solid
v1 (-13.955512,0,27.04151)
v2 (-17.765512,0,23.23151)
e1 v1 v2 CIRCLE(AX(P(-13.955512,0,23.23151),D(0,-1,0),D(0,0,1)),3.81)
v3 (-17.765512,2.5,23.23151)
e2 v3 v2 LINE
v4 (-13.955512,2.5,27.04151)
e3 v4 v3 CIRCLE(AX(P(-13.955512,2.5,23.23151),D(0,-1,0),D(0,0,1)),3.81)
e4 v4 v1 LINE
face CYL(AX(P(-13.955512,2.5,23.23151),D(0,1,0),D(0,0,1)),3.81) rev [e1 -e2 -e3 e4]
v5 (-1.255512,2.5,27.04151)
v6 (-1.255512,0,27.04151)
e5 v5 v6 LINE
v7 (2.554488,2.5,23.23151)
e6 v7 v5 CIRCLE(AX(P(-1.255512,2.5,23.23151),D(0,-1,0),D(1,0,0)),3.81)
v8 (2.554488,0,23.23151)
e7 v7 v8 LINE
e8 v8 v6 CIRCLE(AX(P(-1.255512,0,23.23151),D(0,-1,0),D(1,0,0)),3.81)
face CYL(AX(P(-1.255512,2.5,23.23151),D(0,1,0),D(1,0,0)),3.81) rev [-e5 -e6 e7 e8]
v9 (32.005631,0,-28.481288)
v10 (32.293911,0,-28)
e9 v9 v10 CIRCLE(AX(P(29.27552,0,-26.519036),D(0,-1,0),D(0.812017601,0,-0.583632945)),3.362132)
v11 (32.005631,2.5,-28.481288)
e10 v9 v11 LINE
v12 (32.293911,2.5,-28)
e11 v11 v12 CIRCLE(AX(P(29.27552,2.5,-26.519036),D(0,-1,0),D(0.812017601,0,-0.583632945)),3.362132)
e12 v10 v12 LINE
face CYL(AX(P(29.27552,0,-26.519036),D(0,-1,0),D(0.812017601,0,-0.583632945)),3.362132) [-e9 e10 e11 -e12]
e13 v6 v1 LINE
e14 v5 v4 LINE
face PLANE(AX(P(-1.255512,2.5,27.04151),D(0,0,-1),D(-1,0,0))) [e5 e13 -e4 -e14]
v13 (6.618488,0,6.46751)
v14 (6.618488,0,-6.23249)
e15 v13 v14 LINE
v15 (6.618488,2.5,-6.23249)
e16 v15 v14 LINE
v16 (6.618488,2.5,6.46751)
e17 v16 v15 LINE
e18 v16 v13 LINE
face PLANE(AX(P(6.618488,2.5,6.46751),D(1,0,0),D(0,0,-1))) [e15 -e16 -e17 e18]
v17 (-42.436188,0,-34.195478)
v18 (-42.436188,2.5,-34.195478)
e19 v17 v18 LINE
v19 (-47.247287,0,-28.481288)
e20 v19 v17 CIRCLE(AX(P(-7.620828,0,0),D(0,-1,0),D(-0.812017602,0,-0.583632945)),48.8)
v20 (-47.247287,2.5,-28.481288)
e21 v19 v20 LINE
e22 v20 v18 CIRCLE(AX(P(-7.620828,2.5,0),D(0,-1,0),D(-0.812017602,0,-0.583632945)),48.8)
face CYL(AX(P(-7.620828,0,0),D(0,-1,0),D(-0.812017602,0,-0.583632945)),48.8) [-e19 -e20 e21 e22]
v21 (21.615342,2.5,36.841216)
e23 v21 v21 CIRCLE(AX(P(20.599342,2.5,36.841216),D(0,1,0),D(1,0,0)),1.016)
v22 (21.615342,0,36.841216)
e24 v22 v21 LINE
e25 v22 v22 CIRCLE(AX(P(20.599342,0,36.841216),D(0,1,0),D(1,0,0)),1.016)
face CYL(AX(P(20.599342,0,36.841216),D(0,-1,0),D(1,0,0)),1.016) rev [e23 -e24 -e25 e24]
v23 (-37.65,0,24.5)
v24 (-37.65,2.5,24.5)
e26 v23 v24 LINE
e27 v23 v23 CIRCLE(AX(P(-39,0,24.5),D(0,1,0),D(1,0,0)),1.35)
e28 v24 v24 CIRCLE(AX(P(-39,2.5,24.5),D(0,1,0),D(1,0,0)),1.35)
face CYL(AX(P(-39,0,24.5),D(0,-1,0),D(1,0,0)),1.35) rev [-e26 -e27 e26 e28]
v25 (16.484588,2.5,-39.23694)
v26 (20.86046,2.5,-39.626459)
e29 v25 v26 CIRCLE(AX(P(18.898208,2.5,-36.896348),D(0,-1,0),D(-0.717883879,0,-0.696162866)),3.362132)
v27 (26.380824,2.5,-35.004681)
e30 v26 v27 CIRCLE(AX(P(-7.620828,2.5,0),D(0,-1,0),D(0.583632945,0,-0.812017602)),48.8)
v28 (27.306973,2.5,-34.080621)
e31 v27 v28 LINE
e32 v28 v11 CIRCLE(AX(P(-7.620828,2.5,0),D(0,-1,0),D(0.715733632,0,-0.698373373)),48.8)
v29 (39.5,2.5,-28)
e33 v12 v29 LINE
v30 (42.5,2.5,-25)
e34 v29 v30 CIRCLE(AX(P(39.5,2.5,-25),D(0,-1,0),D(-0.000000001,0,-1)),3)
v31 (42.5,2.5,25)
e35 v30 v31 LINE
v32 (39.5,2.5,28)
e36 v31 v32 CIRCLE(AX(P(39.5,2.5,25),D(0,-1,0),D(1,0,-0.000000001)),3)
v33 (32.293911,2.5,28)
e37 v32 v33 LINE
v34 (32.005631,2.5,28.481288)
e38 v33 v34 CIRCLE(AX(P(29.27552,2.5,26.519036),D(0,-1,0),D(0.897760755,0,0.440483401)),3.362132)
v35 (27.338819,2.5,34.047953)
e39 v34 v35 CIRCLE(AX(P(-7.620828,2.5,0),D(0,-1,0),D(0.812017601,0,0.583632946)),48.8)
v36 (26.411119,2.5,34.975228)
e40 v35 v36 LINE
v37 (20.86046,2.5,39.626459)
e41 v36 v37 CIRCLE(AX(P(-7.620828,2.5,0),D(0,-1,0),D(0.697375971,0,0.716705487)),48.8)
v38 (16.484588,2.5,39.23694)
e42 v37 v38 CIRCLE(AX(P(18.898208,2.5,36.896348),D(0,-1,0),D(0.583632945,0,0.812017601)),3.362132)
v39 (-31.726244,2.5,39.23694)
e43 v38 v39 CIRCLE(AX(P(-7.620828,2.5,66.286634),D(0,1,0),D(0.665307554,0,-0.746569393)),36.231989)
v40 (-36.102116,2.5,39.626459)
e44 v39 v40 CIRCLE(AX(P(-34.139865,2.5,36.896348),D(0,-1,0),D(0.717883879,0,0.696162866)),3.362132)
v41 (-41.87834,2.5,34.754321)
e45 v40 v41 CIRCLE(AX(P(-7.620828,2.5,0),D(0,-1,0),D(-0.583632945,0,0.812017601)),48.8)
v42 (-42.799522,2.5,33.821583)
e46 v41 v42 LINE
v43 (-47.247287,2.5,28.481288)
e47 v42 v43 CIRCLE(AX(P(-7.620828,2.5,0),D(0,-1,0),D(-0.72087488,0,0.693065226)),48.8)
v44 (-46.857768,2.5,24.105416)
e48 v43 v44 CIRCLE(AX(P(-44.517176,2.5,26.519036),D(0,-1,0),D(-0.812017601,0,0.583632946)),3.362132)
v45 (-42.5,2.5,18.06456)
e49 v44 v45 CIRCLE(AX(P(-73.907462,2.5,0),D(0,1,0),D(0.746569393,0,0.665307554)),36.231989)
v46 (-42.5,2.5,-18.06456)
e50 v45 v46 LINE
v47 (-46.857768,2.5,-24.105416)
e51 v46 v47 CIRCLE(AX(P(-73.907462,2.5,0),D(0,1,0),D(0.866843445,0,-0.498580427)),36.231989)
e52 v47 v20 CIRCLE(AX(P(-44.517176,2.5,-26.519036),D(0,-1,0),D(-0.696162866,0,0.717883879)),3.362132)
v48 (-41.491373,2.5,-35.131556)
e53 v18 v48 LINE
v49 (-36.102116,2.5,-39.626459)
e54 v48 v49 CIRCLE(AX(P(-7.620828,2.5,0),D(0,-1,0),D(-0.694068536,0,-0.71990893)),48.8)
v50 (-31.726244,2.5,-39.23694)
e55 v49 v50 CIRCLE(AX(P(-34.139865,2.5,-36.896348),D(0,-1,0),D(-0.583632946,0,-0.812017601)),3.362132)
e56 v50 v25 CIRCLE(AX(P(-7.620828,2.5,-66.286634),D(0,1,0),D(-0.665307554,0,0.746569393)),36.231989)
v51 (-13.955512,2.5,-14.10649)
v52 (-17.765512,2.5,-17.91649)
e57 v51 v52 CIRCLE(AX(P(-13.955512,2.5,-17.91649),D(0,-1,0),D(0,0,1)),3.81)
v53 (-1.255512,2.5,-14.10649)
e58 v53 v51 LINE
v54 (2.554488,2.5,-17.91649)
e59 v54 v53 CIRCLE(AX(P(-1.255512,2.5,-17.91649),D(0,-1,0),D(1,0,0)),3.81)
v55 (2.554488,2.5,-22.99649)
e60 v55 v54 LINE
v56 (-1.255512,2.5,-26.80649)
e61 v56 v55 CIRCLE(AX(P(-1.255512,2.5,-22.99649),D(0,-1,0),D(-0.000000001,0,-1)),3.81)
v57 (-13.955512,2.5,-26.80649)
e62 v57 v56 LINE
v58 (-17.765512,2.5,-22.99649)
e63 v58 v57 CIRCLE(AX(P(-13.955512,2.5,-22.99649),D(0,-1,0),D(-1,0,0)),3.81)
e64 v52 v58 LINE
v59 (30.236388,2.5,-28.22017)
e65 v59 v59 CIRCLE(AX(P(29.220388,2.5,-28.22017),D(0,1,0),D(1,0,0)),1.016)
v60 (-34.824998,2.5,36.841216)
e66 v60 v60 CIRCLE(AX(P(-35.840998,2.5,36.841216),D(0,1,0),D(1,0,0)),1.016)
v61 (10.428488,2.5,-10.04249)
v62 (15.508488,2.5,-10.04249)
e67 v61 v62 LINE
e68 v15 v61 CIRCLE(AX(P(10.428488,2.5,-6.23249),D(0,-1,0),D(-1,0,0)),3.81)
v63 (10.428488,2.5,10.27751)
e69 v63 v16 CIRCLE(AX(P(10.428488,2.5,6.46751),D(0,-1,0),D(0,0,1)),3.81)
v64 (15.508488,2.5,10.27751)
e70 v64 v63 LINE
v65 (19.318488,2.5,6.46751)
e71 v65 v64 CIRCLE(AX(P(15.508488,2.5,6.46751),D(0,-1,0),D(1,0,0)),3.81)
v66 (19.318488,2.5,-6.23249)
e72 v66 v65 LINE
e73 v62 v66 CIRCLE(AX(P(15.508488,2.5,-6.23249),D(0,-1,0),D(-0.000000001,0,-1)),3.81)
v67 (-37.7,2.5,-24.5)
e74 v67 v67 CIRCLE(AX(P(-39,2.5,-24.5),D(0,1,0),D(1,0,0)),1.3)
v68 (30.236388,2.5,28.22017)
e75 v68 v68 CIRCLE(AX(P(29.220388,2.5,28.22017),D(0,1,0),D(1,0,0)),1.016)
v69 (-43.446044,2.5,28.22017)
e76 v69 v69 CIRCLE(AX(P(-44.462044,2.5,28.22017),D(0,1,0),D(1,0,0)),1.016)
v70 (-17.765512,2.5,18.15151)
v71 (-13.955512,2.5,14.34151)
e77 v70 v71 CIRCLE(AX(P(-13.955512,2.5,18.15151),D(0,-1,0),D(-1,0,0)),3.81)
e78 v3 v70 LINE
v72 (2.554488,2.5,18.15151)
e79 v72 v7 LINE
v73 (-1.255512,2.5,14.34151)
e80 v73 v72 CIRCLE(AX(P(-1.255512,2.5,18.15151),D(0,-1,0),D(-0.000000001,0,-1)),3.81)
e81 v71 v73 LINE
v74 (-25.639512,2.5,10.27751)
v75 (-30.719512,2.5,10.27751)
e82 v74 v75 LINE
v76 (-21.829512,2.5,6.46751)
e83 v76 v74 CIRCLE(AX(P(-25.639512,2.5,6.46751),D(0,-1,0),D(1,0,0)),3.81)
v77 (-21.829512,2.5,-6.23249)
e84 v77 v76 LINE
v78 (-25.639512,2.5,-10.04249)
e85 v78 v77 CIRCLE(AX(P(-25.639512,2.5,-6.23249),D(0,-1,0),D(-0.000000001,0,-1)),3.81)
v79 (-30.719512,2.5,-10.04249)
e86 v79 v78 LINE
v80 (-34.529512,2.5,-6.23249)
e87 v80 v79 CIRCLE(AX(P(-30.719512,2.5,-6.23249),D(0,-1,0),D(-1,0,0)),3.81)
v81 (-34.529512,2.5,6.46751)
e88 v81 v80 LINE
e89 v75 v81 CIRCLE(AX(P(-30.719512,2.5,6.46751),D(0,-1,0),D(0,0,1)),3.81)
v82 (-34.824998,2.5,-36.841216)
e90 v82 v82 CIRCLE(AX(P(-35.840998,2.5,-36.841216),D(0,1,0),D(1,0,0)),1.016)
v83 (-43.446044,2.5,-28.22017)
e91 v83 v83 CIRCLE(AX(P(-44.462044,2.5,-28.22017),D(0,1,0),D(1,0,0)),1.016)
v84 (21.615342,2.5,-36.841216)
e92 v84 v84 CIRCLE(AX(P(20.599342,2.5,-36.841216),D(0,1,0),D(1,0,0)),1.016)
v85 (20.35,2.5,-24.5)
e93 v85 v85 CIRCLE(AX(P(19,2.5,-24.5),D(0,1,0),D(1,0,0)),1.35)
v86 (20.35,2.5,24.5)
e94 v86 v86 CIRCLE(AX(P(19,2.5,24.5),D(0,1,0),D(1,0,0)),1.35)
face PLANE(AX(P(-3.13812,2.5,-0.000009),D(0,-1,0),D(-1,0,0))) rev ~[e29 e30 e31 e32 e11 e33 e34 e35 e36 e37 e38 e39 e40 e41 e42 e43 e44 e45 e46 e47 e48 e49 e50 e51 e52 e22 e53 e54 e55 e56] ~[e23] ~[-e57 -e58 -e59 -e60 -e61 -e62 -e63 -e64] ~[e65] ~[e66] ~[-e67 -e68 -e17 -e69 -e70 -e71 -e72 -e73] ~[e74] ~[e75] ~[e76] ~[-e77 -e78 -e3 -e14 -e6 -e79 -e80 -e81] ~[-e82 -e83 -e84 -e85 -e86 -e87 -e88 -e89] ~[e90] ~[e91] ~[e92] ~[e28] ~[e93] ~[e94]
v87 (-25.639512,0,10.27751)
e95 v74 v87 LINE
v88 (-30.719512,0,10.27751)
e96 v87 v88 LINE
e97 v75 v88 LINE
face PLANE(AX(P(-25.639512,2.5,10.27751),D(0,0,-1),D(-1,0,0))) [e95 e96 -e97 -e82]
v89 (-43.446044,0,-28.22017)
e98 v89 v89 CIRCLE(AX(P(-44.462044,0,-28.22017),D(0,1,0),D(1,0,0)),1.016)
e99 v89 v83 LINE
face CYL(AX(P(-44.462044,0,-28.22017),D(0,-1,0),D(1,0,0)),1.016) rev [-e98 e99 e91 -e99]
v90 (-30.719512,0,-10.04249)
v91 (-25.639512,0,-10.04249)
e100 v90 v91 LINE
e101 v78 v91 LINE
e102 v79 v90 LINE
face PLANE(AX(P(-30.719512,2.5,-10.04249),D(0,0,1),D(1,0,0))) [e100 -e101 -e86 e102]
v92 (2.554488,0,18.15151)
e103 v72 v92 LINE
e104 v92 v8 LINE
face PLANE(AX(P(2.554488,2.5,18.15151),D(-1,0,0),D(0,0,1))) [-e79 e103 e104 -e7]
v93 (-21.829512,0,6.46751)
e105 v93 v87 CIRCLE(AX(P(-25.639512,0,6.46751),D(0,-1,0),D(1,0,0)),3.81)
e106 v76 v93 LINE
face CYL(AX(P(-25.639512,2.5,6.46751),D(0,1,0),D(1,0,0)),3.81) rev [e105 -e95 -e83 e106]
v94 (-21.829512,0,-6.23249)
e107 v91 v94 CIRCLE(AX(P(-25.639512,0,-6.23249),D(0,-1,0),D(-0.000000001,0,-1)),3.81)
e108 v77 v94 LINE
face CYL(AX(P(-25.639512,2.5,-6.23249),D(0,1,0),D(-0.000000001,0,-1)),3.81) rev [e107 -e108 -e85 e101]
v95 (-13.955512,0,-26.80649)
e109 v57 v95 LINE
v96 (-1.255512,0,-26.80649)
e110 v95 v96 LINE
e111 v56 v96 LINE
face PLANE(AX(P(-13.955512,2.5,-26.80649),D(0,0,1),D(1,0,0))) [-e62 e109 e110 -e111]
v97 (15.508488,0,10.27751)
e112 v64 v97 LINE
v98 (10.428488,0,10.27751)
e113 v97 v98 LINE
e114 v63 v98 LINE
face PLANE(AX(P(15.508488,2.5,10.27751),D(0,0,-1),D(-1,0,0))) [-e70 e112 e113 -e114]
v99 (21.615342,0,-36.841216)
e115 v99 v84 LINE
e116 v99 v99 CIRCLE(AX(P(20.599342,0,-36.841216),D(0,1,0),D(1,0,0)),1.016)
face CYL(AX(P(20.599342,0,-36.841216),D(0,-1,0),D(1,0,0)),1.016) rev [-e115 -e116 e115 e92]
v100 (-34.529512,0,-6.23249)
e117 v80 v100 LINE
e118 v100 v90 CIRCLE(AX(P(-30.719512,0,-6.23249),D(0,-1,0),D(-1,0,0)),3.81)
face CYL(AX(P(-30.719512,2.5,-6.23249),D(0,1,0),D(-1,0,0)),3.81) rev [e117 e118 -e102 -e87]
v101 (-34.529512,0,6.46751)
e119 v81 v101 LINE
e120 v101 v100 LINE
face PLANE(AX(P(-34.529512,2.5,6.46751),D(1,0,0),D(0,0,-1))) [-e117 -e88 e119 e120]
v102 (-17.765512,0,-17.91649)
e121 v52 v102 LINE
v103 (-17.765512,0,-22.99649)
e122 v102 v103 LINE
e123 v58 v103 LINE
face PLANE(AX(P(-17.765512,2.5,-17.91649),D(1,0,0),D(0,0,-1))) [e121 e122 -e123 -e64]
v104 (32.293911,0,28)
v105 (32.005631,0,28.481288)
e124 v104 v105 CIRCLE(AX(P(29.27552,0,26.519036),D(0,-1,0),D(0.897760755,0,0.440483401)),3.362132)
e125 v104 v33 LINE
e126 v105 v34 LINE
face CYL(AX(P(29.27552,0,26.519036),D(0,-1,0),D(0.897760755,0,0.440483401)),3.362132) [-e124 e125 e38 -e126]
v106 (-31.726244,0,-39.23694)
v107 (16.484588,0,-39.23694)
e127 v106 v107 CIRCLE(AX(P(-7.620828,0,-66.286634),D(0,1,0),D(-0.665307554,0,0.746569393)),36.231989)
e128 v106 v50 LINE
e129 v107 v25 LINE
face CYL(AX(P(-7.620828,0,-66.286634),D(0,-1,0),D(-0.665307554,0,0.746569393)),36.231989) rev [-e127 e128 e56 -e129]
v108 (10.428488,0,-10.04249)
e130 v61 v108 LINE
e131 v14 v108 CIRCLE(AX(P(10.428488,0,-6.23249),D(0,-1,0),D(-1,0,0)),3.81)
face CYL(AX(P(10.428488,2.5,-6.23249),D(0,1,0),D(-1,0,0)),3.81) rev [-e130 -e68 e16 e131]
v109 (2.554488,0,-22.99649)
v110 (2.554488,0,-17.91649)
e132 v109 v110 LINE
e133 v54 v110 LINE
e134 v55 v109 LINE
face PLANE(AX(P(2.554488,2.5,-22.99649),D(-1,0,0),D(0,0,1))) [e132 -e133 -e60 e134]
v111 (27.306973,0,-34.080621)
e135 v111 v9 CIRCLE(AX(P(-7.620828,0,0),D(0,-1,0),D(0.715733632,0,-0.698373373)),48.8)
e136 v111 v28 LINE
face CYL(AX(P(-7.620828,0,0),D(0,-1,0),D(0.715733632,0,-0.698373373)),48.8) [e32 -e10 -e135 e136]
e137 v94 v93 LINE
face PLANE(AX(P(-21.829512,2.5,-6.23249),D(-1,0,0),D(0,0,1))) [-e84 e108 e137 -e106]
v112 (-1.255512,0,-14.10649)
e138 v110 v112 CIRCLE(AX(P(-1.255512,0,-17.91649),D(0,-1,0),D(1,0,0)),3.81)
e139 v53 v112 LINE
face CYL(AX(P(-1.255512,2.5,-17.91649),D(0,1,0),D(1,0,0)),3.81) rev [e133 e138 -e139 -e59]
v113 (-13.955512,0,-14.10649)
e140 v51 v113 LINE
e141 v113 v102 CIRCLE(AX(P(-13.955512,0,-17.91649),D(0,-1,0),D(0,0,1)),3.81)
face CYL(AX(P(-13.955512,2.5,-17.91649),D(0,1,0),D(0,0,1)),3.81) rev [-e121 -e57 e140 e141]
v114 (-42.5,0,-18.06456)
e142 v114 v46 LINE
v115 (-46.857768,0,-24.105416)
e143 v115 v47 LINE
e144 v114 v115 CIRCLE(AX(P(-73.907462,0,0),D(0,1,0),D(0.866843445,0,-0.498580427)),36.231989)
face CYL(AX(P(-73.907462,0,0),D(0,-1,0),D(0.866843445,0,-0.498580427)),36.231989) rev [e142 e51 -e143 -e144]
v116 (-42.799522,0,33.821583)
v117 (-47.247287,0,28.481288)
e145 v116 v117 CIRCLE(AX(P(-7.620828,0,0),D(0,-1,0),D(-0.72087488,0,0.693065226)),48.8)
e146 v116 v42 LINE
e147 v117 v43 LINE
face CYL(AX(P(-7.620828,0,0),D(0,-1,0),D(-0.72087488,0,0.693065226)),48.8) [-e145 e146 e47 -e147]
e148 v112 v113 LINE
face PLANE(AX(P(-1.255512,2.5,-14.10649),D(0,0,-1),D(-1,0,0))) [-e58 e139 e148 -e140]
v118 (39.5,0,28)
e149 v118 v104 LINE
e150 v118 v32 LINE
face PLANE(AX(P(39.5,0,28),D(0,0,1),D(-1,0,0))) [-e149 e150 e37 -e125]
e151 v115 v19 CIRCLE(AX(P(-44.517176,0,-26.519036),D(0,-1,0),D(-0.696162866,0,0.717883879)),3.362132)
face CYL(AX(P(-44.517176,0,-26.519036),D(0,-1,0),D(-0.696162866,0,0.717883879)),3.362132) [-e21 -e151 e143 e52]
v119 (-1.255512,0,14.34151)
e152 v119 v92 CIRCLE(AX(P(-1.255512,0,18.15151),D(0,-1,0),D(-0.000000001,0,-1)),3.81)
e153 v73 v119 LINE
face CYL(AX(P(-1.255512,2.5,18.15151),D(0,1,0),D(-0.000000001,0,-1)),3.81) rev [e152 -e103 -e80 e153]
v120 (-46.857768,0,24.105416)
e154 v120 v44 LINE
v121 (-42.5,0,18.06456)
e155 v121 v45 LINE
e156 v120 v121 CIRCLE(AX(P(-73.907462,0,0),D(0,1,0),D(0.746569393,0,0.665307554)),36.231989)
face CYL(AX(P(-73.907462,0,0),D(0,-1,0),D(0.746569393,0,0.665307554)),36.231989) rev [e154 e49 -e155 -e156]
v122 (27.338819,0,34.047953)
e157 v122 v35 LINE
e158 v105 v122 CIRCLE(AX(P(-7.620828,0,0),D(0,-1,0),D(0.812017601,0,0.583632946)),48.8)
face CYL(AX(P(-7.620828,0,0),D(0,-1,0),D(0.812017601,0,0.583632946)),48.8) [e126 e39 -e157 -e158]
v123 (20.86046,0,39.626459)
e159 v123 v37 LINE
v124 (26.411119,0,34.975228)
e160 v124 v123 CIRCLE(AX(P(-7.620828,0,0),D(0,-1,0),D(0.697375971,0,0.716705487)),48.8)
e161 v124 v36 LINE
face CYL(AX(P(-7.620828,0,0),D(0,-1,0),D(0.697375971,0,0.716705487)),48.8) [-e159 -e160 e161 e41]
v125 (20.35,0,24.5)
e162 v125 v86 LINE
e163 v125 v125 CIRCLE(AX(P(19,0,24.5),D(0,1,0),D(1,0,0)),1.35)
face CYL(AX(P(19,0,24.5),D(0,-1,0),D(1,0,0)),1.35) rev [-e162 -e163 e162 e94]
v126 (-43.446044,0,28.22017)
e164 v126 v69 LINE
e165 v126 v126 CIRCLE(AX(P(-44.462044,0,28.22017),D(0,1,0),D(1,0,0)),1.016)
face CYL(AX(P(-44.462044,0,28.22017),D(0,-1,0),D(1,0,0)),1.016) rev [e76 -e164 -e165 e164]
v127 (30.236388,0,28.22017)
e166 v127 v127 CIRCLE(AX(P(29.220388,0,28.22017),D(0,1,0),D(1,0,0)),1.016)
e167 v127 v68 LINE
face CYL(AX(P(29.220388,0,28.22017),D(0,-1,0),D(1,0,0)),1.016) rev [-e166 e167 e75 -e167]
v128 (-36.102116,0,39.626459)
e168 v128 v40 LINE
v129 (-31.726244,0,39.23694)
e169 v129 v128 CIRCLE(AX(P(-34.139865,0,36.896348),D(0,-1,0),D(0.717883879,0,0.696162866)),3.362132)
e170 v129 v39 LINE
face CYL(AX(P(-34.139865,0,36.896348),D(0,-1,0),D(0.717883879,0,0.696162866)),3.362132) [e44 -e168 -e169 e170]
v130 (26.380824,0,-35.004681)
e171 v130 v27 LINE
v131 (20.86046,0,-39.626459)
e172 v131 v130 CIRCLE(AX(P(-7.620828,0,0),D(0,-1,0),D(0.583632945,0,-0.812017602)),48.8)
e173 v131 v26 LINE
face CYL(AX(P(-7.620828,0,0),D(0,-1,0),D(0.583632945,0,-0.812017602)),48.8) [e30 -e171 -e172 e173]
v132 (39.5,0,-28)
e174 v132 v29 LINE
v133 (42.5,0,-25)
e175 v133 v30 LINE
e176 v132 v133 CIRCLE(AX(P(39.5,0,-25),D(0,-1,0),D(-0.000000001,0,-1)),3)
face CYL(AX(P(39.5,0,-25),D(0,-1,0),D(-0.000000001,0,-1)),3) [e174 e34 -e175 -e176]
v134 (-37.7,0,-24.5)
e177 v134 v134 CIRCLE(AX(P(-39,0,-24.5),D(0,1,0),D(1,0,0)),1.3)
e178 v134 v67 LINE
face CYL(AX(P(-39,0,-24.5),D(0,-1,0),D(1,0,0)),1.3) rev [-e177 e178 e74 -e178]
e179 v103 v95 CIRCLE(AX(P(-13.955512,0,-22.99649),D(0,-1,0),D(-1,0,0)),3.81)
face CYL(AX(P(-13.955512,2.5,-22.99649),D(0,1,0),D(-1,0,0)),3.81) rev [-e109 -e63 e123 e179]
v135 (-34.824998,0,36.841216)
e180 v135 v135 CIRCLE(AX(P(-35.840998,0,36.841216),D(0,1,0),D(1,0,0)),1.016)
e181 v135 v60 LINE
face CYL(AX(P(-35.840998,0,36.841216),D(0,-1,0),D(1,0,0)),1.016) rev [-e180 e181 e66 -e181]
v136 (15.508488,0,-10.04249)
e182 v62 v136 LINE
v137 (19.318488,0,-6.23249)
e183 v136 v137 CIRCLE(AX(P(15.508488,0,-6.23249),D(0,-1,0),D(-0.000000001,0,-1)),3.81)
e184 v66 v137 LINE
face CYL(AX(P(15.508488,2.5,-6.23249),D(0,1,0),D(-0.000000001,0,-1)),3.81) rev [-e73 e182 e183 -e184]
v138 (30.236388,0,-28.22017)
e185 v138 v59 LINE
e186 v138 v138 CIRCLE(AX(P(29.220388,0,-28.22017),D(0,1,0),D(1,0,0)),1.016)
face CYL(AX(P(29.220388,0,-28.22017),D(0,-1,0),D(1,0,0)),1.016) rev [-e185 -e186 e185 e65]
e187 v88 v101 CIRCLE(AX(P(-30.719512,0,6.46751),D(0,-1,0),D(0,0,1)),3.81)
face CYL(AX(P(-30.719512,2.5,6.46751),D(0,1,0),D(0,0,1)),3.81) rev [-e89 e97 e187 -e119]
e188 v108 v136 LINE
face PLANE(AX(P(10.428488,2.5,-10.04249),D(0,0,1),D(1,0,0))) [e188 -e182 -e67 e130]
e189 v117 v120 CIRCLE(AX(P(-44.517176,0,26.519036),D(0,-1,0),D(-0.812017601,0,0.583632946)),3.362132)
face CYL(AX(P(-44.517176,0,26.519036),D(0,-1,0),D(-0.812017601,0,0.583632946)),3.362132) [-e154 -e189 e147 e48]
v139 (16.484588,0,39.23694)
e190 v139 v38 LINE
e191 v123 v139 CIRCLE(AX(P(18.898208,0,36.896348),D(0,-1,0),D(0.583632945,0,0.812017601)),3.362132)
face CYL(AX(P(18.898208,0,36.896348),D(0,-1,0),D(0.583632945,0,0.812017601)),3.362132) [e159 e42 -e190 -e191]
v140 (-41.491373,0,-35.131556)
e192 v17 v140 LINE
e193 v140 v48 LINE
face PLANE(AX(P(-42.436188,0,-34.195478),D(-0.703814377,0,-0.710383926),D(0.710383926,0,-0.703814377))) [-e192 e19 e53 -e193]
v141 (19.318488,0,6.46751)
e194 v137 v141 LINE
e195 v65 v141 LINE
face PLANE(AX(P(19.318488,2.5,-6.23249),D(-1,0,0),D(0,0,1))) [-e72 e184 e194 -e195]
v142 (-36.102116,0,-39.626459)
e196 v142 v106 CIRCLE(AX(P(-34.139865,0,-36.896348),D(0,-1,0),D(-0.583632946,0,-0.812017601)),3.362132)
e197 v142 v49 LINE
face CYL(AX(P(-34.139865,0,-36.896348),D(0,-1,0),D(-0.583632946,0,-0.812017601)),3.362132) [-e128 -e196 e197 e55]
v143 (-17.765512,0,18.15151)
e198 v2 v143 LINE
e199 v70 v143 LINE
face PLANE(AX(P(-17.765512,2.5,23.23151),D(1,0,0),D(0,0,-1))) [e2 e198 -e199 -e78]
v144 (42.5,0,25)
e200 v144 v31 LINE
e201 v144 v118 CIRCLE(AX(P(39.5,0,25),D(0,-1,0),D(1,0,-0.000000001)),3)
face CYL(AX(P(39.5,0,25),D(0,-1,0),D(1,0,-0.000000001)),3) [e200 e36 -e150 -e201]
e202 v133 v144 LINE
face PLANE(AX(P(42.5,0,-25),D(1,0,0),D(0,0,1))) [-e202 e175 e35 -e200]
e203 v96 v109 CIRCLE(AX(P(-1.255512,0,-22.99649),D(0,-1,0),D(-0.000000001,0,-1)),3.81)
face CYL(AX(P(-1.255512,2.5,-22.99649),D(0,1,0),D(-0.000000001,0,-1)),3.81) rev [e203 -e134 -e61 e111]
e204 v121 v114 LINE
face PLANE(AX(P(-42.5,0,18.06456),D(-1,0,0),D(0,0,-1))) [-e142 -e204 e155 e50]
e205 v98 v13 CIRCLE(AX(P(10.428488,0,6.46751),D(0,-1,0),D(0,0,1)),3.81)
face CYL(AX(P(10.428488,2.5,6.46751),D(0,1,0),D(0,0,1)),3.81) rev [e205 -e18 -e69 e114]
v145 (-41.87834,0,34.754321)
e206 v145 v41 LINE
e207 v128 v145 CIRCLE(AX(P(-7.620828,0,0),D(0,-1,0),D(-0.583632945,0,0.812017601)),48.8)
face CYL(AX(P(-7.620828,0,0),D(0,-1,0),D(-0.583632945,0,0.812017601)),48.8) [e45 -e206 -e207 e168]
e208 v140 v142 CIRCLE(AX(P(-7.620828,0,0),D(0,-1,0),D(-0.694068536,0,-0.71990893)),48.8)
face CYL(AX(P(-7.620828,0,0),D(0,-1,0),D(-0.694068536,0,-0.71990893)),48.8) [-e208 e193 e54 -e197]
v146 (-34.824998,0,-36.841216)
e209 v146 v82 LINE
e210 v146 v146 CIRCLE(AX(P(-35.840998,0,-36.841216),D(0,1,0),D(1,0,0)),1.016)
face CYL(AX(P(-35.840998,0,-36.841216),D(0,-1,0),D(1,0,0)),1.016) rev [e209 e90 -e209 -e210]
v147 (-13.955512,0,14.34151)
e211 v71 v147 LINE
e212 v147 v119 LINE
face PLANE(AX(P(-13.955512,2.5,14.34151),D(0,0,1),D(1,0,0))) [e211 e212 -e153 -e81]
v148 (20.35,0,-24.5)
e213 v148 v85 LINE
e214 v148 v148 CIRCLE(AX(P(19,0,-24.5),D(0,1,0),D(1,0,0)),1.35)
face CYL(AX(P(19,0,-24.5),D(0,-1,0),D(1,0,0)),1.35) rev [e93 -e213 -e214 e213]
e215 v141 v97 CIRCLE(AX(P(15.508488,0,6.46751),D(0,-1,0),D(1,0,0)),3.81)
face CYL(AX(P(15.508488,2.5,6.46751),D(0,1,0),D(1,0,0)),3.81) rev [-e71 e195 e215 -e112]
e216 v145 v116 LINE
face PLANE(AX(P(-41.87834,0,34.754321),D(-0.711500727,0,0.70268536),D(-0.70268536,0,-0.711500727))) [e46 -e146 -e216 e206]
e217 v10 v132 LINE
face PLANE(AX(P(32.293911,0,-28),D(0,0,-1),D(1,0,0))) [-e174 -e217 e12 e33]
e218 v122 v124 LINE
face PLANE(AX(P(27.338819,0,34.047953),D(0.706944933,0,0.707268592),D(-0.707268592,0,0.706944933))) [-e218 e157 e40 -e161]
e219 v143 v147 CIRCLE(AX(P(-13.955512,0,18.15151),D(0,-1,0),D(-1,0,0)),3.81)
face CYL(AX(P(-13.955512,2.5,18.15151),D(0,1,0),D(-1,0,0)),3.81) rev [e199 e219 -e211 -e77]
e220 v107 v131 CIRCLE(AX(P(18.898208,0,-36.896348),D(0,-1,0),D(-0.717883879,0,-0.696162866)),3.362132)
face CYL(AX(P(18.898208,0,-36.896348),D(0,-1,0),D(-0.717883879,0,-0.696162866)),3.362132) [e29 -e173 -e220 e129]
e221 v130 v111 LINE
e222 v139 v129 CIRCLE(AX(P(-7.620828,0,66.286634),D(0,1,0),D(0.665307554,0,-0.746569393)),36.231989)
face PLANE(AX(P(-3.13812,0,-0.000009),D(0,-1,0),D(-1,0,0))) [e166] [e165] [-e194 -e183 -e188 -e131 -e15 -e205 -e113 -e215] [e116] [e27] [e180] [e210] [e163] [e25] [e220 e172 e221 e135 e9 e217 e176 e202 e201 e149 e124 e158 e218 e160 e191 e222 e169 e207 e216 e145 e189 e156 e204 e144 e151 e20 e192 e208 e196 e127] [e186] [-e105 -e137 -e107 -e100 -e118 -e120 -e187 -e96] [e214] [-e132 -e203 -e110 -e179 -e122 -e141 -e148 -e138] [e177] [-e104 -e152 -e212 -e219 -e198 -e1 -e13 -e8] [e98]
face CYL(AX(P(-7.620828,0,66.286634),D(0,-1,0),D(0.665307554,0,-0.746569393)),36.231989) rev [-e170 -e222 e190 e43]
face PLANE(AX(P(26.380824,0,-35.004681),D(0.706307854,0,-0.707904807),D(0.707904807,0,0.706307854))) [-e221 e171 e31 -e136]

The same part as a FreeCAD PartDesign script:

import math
import FreeCAD as App
import Part
import Sketcher

V = App.Vector
Q = App.Units.Quantity

doc = App.newDocument("Part")
params = doc.addObject("Spreadsheet::Sheet", "Params")
for row, (alias, value) in enumerate([
    ("sketch1_radius", "3 mm"),
    ("sketch1_radius2", "48.8 mm"),
    ("sketch1_height", "50 mm"),
    ("pad1_length", "2.5 mm"),
    ("sketch2_diameter", "2.7 mm"),
    ("sketch2_diameter2", "2.6 mm"),
    ("pocket1_length", "2.5 mm"),
    ("sketch3_radius", "3.81 mm"),
    ("sketch3_width", "12.7 mm"),
    ("sketch3_width2", "5.08 mm"),
    ("pocket2_length", "2.5 mm"),
], start=1):
    params.set(f"A{row}", alias)
    params.set(f"B{row}", "=" + value)
    params.setAlias(f"B{row}", alias)

body = doc.addObject("PartDesign::Body", "Body")

sketch1 = body.newObject("Sketcher::SketchObject", "Sketch")
sketch1.AttachmentSupport = (doc.getObject("XZ_Plane"), [""])
sketch1.MapMode = "FlatFace"
sketch1.addGeometry(Part.LineSegment(V(-41.5, -35.1, 0), V(-42.4, -34.2, 0)), False)
sketch1.addGeometry(Part.ArcOfCircle(Part.Circle(V(-7.6, 0, 0), V(0, 0, 1), 48.8), math.radians(-144.29), math.radians(-135.51)), False)
sketch1.addGeometry(Part.ArcOfCircle(Part.Circle(V(-44.5, -26.5, 0), V(0, 0, 1), 3.4), math.radians(134), math.radians(216)), False)
sketch1.addGeometry(Part.ArcOfCircle(Part.Circle(V(-73.9, 0, 0), V(0, 0, 1), 36.2), math.radians(-41.71), math.radians(-29.91)), False)
sketch1.addGeometry(Part.LineSegment(V(-42.5, -18.1, 0), V(-42.5, 18.1, 0)), False)
sketch1.addGeometry(Part.ArcOfCircle(Part.Circle(V(-73.9, 0, 0), V(0, 0, 1), 36.2), math.radians(29.91), math.radians(41.71)), False)
sketch1.addGeometry(Part.ArcOfCircle(Part.Circle(V(-44.5, 26.5, 0), V(0, 0, 1), 3.4), math.radians(144), math.radians(226)), False)
sketch1.addGeometry(Part.ArcOfCircle(Part.Circle(V(-7.6, 0, 0), V(0, 0, 1), 48.8), math.radians(136.13), math.radians(144.29)), False)
sketch1.addGeometry(Part.LineSegment(V(-42.8, 33.8, 0), V(-41.9, 34.8, 0)), False)
sketch1.addGeometry(Part.ArcOfCircle(Part.Circle(V(-7.6, 0, 0), V(0, 0, 1), 48.8), math.radians(125.71), math.radians(134.59)), False)
sketch1.addGeometry(Part.ArcOfCircle(Part.Circle(V(-34.1, 36.9, 0), V(0, 0, 1), 3.4), math.radians(44), math.radians(126)), False)
sketch1.addGeometry(Part.ArcOfCircle(Part.Circle(V(-7.6, 66.3, 0), V(0, 0, 1), 36.2), math.radians(-132), math.radians(-48)), False)
sketch1.addGeometry(Part.ArcOfCircle(Part.Circle(V(18.9, 36.9, 0), V(0, 0, 1), 3.4), math.radians(54), math.radians(136)), False)
sketch1.addGeometry(Part.ArcOfCircle(Part.Circle(V(-7.6, 0, 0), V(0, 0, 1), 48.8), math.radians(45.78), math.radians(54.29)), False)
sketch1.addGeometry(Part.LineSegment(V(26.4, 35, 0), V(27.3, 34, 0)), False)
sketch1.addGeometry(Part.ArcOfCircle(Part.Circle(V(-7.6, 0, 0), V(0, 0, 1), 48.8), math.radians(35.71), math.radians(44.24)), False)
sketch1.addGeometry(Part.ArcOfCircle(Part.Circle(V(29.3, 26.5, 0), V(0, 0, 1), 3.4), math.radians(26.13), math.radians(35.71)), False)
sketch1.addGeometry(Part.LineSegment(V(32.3, 28, 0), V(39.5, 28, 0)), False)
sketch1.addGeometry(Part.ArcOfCircle(Part.Circle(V(39.5, 25, 0), V(0, 0, 1), 3), math.radians(0), math.radians(90)), False)
sketch1.addGeometry(Part.LineSegment(V(42.5, 25, 0), V(42.5, -25, 0)), False)
sketch1.addGeometry(Part.ArcOfCircle(Part.Circle(V(39.5, -25, 0), V(0, 0, 1), 3), math.radians(-90), math.radians(0)), False)
sketch1.addGeometry(Part.LineSegment(V(39.5, -28, 0), V(32.3, -28, 0)), False)
sketch1.addGeometry(Part.ArcOfCircle(Part.Circle(V(29.3, -26.5, 0), V(0, 0, 1), 3.4), math.radians(-35.71), math.radians(-26.13)), False)
sketch1.addGeometry(Part.ArcOfCircle(Part.Circle(V(-7.6, 0, 0), V(0, 0, 1), 48.8), math.radians(-44.3), math.radians(-35.71)), False)
sketch1.addGeometry(Part.LineSegment(V(27.3, -34.1, 0), V(26.4, -35, 0)), False)
sketch1.addGeometry(Part.ArcOfCircle(Part.Circle(V(-7.6, 0, 0), V(0, 0, 1), 48.8), math.radians(-54.29), math.radians(-45.83)), False)
sketch1.addGeometry(Part.ArcOfCircle(Part.Circle(V(18.9, -36.9, 0), V(0, 0, 1), 3.4), math.radians(-136), math.radians(-54)), False)
sketch1.addGeometry(Part.ArcOfCircle(Part.Circle(V(-7.6, -66.3, 0), V(0, 0, 1), 36.2), math.radians(48), math.radians(132)), False)
sketch1.addGeometry(Part.ArcOfCircle(Part.Circle(V(-34.1, -36.9, 0), V(0, 0, 1), 3.4), math.radians(-126), math.radians(-44)), False)
sketch1.addGeometry(Part.ArcOfCircle(Part.Circle(V(-7.6, 0, 0), V(0, 0, 1), 48.8), math.radians(-133.95), math.radians(-125.71)), False)
sketch1.addGeometry(Part.Circle(V(20.6, 36.8, 0), V(0, 0, 1), 1), False)
sketch1.addGeometry(Part.Circle(V(29.2, 28.2, 0), V(0, 0, 1), 1), False)
sketch1.addGeometry(Part.Circle(V(-35.8, 36.8, 0), V(0, 0, 1), 1), False)
sketch1.addGeometry(Part.Circle(V(-44.5, 28.2, 0), V(0, 0, 1), 1), False)
sketch1.addGeometry(Part.Circle(V(29.2, -28.2, 0), V(0, 0, 1), 1), False)
sketch1.addGeometry(Part.Circle(V(20.6, -36.8, 0), V(0, 0, 1), 1), False)
sketch1.addGeometry(Part.Circle(V(-44.5, -28.2, 0), V(0, 0, 1), 1), False)
sketch1.addGeometry(Part.Circle(V(-35.8, -36.8, 0), V(0, 0, 1), 1), False)
sketch1.addConstraint(Sketcher.Constraint("Coincident", 0, 2, 1, 2))
sketch1.addConstraint(Sketcher.Constraint("Tangent", 1, 1, 2, 2))
sketch1.addConstraint(Sketcher.Constraint("Coincident", 2, 1, 3, 1))
sketch1.addConstraint(Sketcher.Constraint("Coincident", 3, 2, 4, 1))
sketch1.addConstraint(Sketcher.Constraint("Coincident", 4, 2, 5, 1))
sketch1.addConstraint(Sketcher.Constraint("Coincident", 5, 2, 6, 2))
sketch1.addConstraint(Sketcher.Constraint("Tangent", 6, 1, 7, 2))
sketch1.addConstraint(Sketcher.Constraint("Coincident", 7, 1, 8, 1))
sketch1.addConstraint(Sketcher.Constraint("Coincident", 8, 2, 9, 2))
sketch1.addConstraint(Sketcher.Constraint("Tangent", 9, 1, 10, 2))
sketch1.addConstraint(Sketcher.Constraint("Coincident", 10, 1, 11, 1))
sketch1.addConstraint(Sketcher.Constraint("Coincident", 11, 2, 12, 2))
sketch1.addConstraint(Sketcher.Constraint("Tangent", 12, 1, 13, 2))
sketch1.addConstraint(Sketcher.Constraint("Coincident", 13, 1, 14, 1))
sketch1.addConstraint(Sketcher.Constraint("Coincident", 14, 2, 15, 2))
sketch1.addConstraint(Sketcher.Constraint("Tangent", 15, 1, 16, 2))
sketch1.addConstraint(Sketcher.Constraint("Coincident", 16, 1, 17, 1))
sketch1.addConstraint(Sketcher.Constraint("Tangent", 17, 2, 18, 2))
sketch1.addConstraint(Sketcher.Constraint("Tangent", 18, 1, 19, 1))
sketch1.addConstraint(Sketcher.Constraint("Tangent", 19, 2, 20, 2))
sketch1.addConstraint(Sketcher.Constraint("Tangent", 20, 1, 21, 1))
sketch1.addConstraint(Sketcher.Constraint("Coincident", 21, 2, 22, 2))
sketch1.addConstraint(Sketcher.Constraint("Tangent", 22, 1, 23, 2))
sketch1.addConstraint(Sketcher.Constraint("Coincident", 23, 1, 24, 1))
sketch1.addConstraint(Sketcher.Constraint("Coincident", 24, 2, 25, 2))
sketch1.addConstraint(Sketcher.Constraint("Tangent", 25, 1, 26, 2))
sketch1.addConstraint(Sketcher.Constraint("Coincident", 26, 1, 27, 1))
sketch1.addConstraint(Sketcher.Constraint("Coincident", 27, 2, 28, 2))
sketch1.addConstraint(Sketcher.Constraint("Tangent", 28, 1, 29, 2))
sketch1.addConstraint(Sketcher.Constraint("Coincident", 29, 1, 0, 1))
sketch1.addConstraint(Sketcher.Constraint("Vertical", 4))
sketch1.addConstraint(Sketcher.Constraint("Horizontal", 17))
sketch1.addConstraint(Sketcher.Constraint("Vertical", 19))
sketch1.addConstraint(Sketcher.Constraint("Horizontal", 21))
sketch1.addConstraint(Sketcher.Constraint("Coincident", 5, 3, 3, 3))
sketch1.addConstraint(Sketcher.Constraint("Coincident", 7, 3, 1, 3))
sketch1.addConstraint(Sketcher.Constraint("Coincident", 9, 3, 1, 3))
sketch1.addConstraint(Sketcher.Constraint("Coincident", 13, 3, 1, 3))
sketch1.addConstraint(Sketcher.Constraint("Coincident", 15, 3, 1, 3))
sketch1.addConstraint(Sketcher.Constraint("Coincident", 23, 3, 1, 3))
sketch1.addConstraint(Sketcher.Constraint("Coincident", 25, 3, 1, 3))
sketch1.addConstraint(Sketcher.Constraint("Coincident", 29, 3, 1, 3))
sketch1.addConstraint(Sketcher.Constraint("Equal", 3, 5))
sketch1.addConstraint(Sketcher.Constraint("Equal", 2, 6))
sketch1.addConstraint(Sketcher.Constraint("Equal", 1, 7))
sketch1.addConstraint(Sketcher.Constraint("Equal", 7, 9))
sketch1.addConstraint(Sketcher.Constraint("Equal", 6, 10))
sketch1.addConstraint(Sketcher.Constraint("Equal", 5, 11))
sketch1.addConstraint(Sketcher.Constraint("Equal", 10, 12))
sketch1.addConstraint(Sketcher.Constraint("Equal", 9, 13))
sketch1.addConstraint(Sketcher.Constraint("Equal", 13, 15))
sketch1.addConstraint(Sketcher.Constraint("Equal", 12, 16))
sketch1.addConstraint(Sketcher.Constraint("Equal", 18, 20))
sketch1.addConstraint(Sketcher.Constraint("Equal", 16, 22))
sketch1.addConstraint(Sketcher.Constraint("Equal", 15, 23))
sketch1.addConstraint(Sketcher.Constraint("Equal", 23, 25))
sketch1.addConstraint(Sketcher.Constraint("Equal", 22, 26))
sketch1.addConstraint(Sketcher.Constraint("Equal", 11, 27))
sketch1.addConstraint(Sketcher.Constraint("Equal", 26, 28))
sketch1.addConstraint(Sketcher.Constraint("Equal", 25, 29))
sketch1.addConstraint(Sketcher.Constraint("Equal", 30, 31))
sketch1.addConstraint(Sketcher.Constraint("Equal", 31, 32))
sketch1.addConstraint(Sketcher.Constraint("Equal", 32, 33))
sketch1.addConstraint(Sketcher.Constraint("Equal", 33, 34))
sketch1.addConstraint(Sketcher.Constraint("Equal", 34, 35))
sketch1.addConstraint(Sketcher.Constraint("Equal", 35, 36))
sketch1.addConstraint(Sketcher.Constraint("Equal", 36, 37))
sketch1.addConstraint(Sketcher.Constraint("Symmetric", 2, 3, 6, 3, -1))
sketch1.addConstraint(Sketcher.Constraint("Symmetric", 11, 3, 27, 3, -1))
sketch1.addConstraint(Sketcher.Constraint("Symmetric", 31, 3, 34, 3, -1))
sketch1.addConstraint(Sketcher.Constraint("Symmetric", 30, 3, 35, 3, -1))
sketch1.addConstraint(Sketcher.Constraint("Symmetric", 33, 3, 36, 3, -1))
sketch1.addConstraint(Sketcher.Constraint("Symmetric", 32, 3, 37, 3, -1))
sketch1.addConstraint(Sketcher.Constraint("Symmetric", 16, 1, 21, 2, -1))
sketch1.addConstraint(Sketcher.Constraint("PointOnObject", 3, 3, -1))
sketch1.addConstraint(Sketcher.Constraint("Horizontal", 10, 3, 12, 3))
sketch1.addConstraint(Sketcher.Constraint("Horizontal", 6, 3, 16, 3))
sketch1.addConstraint(Sketcher.Constraint("Horizontal", 26, 3, 28, 3))
sketch1.addConstraint(Sketcher.Constraint("Horizontal", 30, 3, 32, 3))
sketch1.addConstraint(Sketcher.Constraint("Horizontal", 31, 3, 33, 3))
sketch1.addConstraint(Sketcher.Constraint("Horizontal", 10, 1, 11, 2))
sketch1.addConstraint(Sketcher.Constraint("Vertical", 12, 3, 26, 3))
sketch1.addConstraint(Sketcher.Constraint("Radius", 18, Q("3 mm")))
sketch1.addConstraint(Sketcher.Constraint("Radius", 1, Q("48.8 mm")))
sketch1.addConstraint(Sketcher.Constraint("DistanceY", 19, 2, 19, 1, Q("50 mm")))
sketch1.addConstraint(Sketcher.Constraint("Diameter", 30, Q("2.032 mm")))
sketch1.addConstraint(Sketcher.Constraint("DistanceX", -1, 1, 18, 3, Q("39.5 mm")))
sketch1.addConstraint(Sketcher.Constraint("DistanceX", 3, 2, -1, 1, Q("42.5 mm")))
sketch1.addConstraint(Sketcher.Constraint("Radius", 3, Q("36.231989 mm")))
sketch1.addConstraint(Sketcher.Constraint("DistanceX", 32, 3, -1, 1, Q("35.840998 mm")))
sketch1.addConstraint(Sketcher.Constraint("Radius", 2, Q("3.362132 mm")))
sketch1.addConstraint(Sketcher.Constraint("DistanceX", 17, 1, 17, 2, Q("7.206089 mm")))
sketch1.addConstraint(Sketcher.Constraint("DistanceY", 4, 1, 4, 2, Q("36.129121 mm")))
sketch1.addConstraint(Sketcher.Constraint("DistanceX", 1, 1, 0, 2, Q("4.811099 mm")))
sketch1.addConstraint(Sketcher.Constraint("DistanceY", 37, 3, 2, 1, Q("12.7358 mm")))
sketch1.addConstraint(Sketcher.Constraint("DistanceX", 11, 2, 31, 3, Q("12.7358 mm")))
sketch1.addConstraint(Sketcher.Constraint("DistanceX", 13, 1, 16, 3, Q("2.864401 mm")))
sketch1.addConstraint(Sketcher.Constraint("DistanceX", 13, 1, 14, 2, Q("0.9277 mm")))
sketch1.addConstraint(Sketcher.Constraint("DistanceX", 36, 3, 27, 2, Q("12.7358 mm")))
sketch1.addConstraint(Sketcher.Constraint("DistanceX", 1, 3, -1, 1, Q("7.620828 mm")))
sketch1.addConstraint(Sketcher.Constraint("DistanceY", -1, 1, 10, 3, Q("36.896348 mm")))
sketch1.addConstraint(Sketcher.Constraint("DistanceX", -1, 1, 31, 3, Q("29.220388 mm")))
sketch1.addConstraint(Sketcher.Constraint("DistanceY", -1, 1, 31, 3, Q("28.22017 mm")))
sketch1.addConstraint(Sketcher.Constraint("DistanceX", 8, 2, -1, 1, Q("41.87834 mm")))
sketch1.addConstraint(Sketcher.Constraint("DistanceY", 23, 1, -1, 1, Q("34.080621 mm")))
sketch1.addConstraint(Sketcher.Constraint("DistanceY", 24, 2, -1, 1, Q("35.004681 mm")))
sketch1.addConstraint(Sketcher.Constraint("DistanceX", 11, 3, 30, 3, Q("28.22017 mm")))
sketch1.addConstraint(Sketcher.Constraint("DistanceX", 33, 3, 7, 1, Q("1.662522 mm")))
sketch1.addConstraint(Sketcher.Constraint("DistanceY", 29, 1, 0, 2, Q("0.936078 mm")))
sketch1.setExpression("Constraints[82]", "Params.sketch1_radius")
sketch1.setExpression("Constraints[83]", "Params.sketch1_radius2")
sketch1.setExpression("Constraints[84]", "Params.sketch1_height")
pad1 = body.newObject("PartDesign::Pad", "Pad")
pad1.Profile = sketch1
pad1.setExpression("Length", "Params.pad1_length")
pad1.Reversed = True

sketch2 = body.newObject("Sketcher::SketchObject", "Sketch001")
sketch2.AttachmentSupport = (doc.getObject("XZ_Plane"), [""])
sketch2.MapMode = "FlatFace"
sketch2.addGeometry(Part.Circle(V(19, 24.5, 0), V(0, 0, 1), 1.4), False)
sketch2.addGeometry(Part.Circle(V(19, -24.5, 0), V(0, 0, 1), 1.4), False)
sketch2.addGeometry(Part.Circle(V(-39, 24.5, 0), V(0, 0, 1), 1.4), False)
sketch2.addGeometry(Part.Circle(V(-39, -24.5, 0), V(0, 0, 1), 1.3), False)
sketch2.addConstraint(Sketcher.Constraint("Equal", 0, 1))
sketch2.addConstraint(Sketcher.Constraint("Equal", 1, 2))
sketch2.addConstraint(Sketcher.Constraint("Symmetric", 0, 3, 1, 3, -1))
sketch2.addConstraint(Sketcher.Constraint("Symmetric", 2, 3, 3, 3, -1))
sketch2.addConstraint(Sketcher.Constraint("Horizontal", 0, 3, 2, 3))
sketch2.addConstraint(Sketcher.Constraint("Diameter", 0, Q("2.7 mm")))
sketch2.addConstraint(Sketcher.Constraint("Diameter", 3, Q("2.6 mm")))
sketch2.addConstraint(Sketcher.Constraint("DistanceX", -1, 1, 0, 3, Q("19 mm")))
sketch2.addConstraint(Sketcher.Constraint("DistanceX", 2, 3, -1, 1, Q("39 mm")))
sketch2.addConstraint(Sketcher.Constraint("DistanceY", 1, 3, 0, 3, Q("49 mm")))
sketch2.setExpression("Constraints[5]", "Params.sketch2_diameter")
sketch2.setExpression("Constraints[6]", "Params.sketch2_diameter2")
pocket1 = body.newObject("PartDesign::Pocket", "Pocket")
pocket1.Profile = sketch2
pocket1.setExpression("Length", "Params.pocket1_length")

sketch3 = body.newObject("Sketcher::SketchObject", "Sketch002")
sketch3.AttachmentSupport = (doc.getObject("XZ_Plane"), [""])
sketch3.MapMode = "FlatFace"
sketch3.AttachmentOffset = App.Placement(V(0, 0, -2.5), App.Rotation())
sketch3.addGeometry(Part.LineSegment(V(-14, 27, 0), V(-1.3, 27, 0)), False)
sketch3.addGeometry(Part.ArcOfCircle(Part.Circle(V(-1.3, 23.2, 0), V(0, 0, 1), 3.8), math.radians(0), math.radians(90)), False)
sketch3.addGeometry(Part.LineSegment(V(2.6, 23.2, 0), V(2.6, 18.2, 0)), False)
sketch3.addGeometry(Part.ArcOfCircle(Part.Circle(V(-1.3, 18.2, 0), V(0, 0, 1), 3.8), math.radians(-90), math.radians(0)), False)
sketch3.addGeometry(Part.LineSegment(V(-1.3, 14.3, 0), V(-14, 14.3, 0)), False)
sketch3.addGeometry(Part.ArcOfCircle(Part.Circle(V(-14, 18.2, 0), V(0, 0, 1), 3.8), math.radians(180), math.radians(270)), False)
sketch3.addGeometry(Part.LineSegment(V(-17.8, 18.2, 0), V(-17.8, 23.2, 0)), False)
sketch3.addGeometry(Part.ArcOfCircle(Part.Circle(V(-14, 23.2, 0), V(0, 0, 1), 3.8), math.radians(90), math.radians(180)), False)
sketch3.addGeometry(Part.LineSegment(V(6.6, -6.2, 0), V(6.6, 6.5, 0)), False)
sketch3.addGeometry(Part.ArcOfCircle(Part.Circle(V(10.4, 6.5, 0), V(0, 0, 1), 3.8), math.radians(90), math.radians(180)), False)
sketch3.addGeometry(Part.LineSegment(V(10.4, 10.3, 0), V(15.5, 10.3, 0)), False)
sketch3.addGeometry(Part.ArcOfCircle(Part.Circle(V(15.5, 6.5, 0), V(0, 0, 1), 3.8), math.radians(0), math.radians(90)), False)
sketch3.addGeometry(Part.LineSegment(V(19.3, 6.5, 0), V(19.3, -6.2, 0)), False)
sketch3.addGeometry(Part.ArcOfCircle(Part.Circle(V(15.5, -6.2, 0), V(0, 0, 1), 3.8), math.radians(-90), math.radians(0)), False)
sketch3.addGeometry(Part.LineSegment(V(15.5, -10, 0), V(10.4, -10, 0)), False)
sketch3.addGeometry(Part.ArcOfCircle(Part.Circle(V(10.4, -6.2, 0), V(0, 0, 1), 3.8), math.radians(180), math.radians(270)), False)
sketch3.addGeometry(Part.LineSegment(V(-14, -14.1, 0), V(-1.3, -14.1, 0)), False)
sketch3.addGeometry(Part.ArcOfCircle(Part.Circle(V(-1.3, -17.9, 0), V(0, 0, 1), 3.8), math.radians(0), math.radians(90)), False)
sketch3.addGeometry(Part.LineSegment(V(2.6, -17.9, 0), V(2.6, -23, 0)), False)
sketch3.addGeometry(Part.ArcOfCircle(Part.Circle(V(-1.3, -23, 0), V(0, 0, 1), 3.8), math.radians(-90), math.radians(0)), False)
sketch3.addGeometry(Part.LineSegment(V(-1.3, -26.8, 0), V(-14, -26.8, 0)), False)
sketch3.addGeometry(Part.ArcOfCircle(Part.Circle(V(-14, -23, 0), V(0, 0, 1), 3.8), math.radians(180), math.radians(270)), False)
sketch3.addGeometry(Part.LineSegment(V(-17.8, -23, 0), V(-17.8, -17.9, 0)), False)
sketch3.addGeometry(Part.ArcOfCircle(Part.Circle(V(-14, -17.9, 0), V(0, 0, 1), 3.8), math.radians(90), math.radians(180)), False)
sketch3.addGeometry(Part.LineSegment(V(-30.7, 10.3, 0), V(-25.6, 10.3, 0)), False)
sketch3.addGeometry(Part.ArcOfCircle(Part.Circle(V(-25.6, 6.5, 0), V(0, 0, 1), 3.8), math.radians(0), math.radians(90)), False)
sketch3.addGeometry(Part.LineSegment(V(-21.8, 6.5, 0), V(-21.8, -6.2, 0)), False)
sketch3.addGeometry(Part.ArcOfCircle(Part.Circle(V(-25.6, -6.2, 0), V(0, 0, 1), 3.8), math.radians(-90), math.radians(0)), False)
sketch3.addGeometry(Part.LineSegment(V(-25.6, -10, 0), V(-30.7, -10, 0)), False)
sketch3.addGeometry(Part.ArcOfCircle(Part.Circle(V(-30.7, -6.2, 0), V(0, 0, 1), 3.8), math.radians(180), math.radians(270)), False)
sketch3.addGeometry(Part.LineSegment(V(-34.5, -6.2, 0), V(-34.5, 6.5, 0)), False)
sketch3.addGeometry(Part.ArcOfCircle(Part.Circle(V(-30.7, 6.5, 0), V(0, 0, 1), 3.8), math.radians(90), math.radians(180)), False)
sketch3.addConstraint(Sketcher.Constraint("Tangent", 0, 2, 1, 2))
sketch3.addConstraint(Sketcher.Constraint("Tangent", 1, 1, 2, 1))
sketch3.addConstraint(Sketcher.Constraint("Tangent", 2, 2, 3, 2))
sketch3.addConstraint(Sketcher.Constraint("Tangent", 3, 1, 4, 1))
sketch3.addConstraint(Sketcher.Constraint("Tangent", 4, 2, 5, 2))
sketch3.addConstraint(Sketcher.Constraint("Tangent", 5, 1, 6, 1))
sketch3.addConstraint(Sketcher.Constraint("Tangent", 6, 2, 7, 2))
sketch3.addConstraint(Sketcher.Constraint("Tangent", 7, 1, 0, 1))
sketch3.addConstraint(Sketcher.Constraint("Tangent", 8, 2, 9, 2))
sketch3.addConstraint(Sketcher.Constraint("Tangent", 9, 1, 10, 1))
sketch3.addConstraint(Sketcher.Constraint("Tangent", 10, 2, 11, 2))
sketch3.addConstraint(Sketcher.Constraint("Tangent", 11, 1, 12, 1))
sketch3.addConstraint(Sketcher.Constraint("Tangent", 12, 2, 13, 2))
sketch3.addConstraint(Sketcher.Constraint("Tangent", 13, 1, 14, 1))
sketch3.addConstraint(Sketcher.Constraint("Tangent", 14, 2, 15, 2))
sketch3.addConstraint(Sketcher.Constraint("Tangent", 15, 1, 8, 1))
sketch3.addConstraint(Sketcher.Constraint("Tangent", 16, 2, 17, 2))
sketch3.addConstraint(Sketcher.Constraint("Tangent", 17, 1, 18, 1))
sketch3.addConstraint(Sketcher.Constraint("Tangent", 18, 2, 19, 2))
sketch3.addConstraint(Sketcher.Constraint("Tangent", 19, 1, 20, 1))
sketch3.addConstraint(Sketcher.Constraint("Tangent", 20, 2, 21, 2))
sketch3.addConstraint(Sketcher.Constraint("Tangent", 21, 1, 22, 1))
sketch3.addConstraint(Sketcher.Constraint("Tangent", 22, 2, 23, 2))
sketch3.addConstraint(Sketcher.Constraint("Tangent", 23, 1, 16, 1))
sketch3.addConstraint(Sketcher.Constraint("Tangent", 24, 2, 25, 2))
sketch3.addConstraint(Sketcher.Constraint("Tangent", 25, 1, 26, 1))
sketch3.addConstraint(Sketcher.Constraint("Tangent", 26, 2, 27, 2))
sketch3.addConstraint(Sketcher.Constraint("Tangent", 27, 1, 28, 1))
sketch3.addConstraint(Sketcher.Constraint("Tangent", 28, 2, 29, 2))
sketch3.addConstraint(Sketcher.Constraint("Tangent", 29, 1, 30, 1))
sketch3.addConstraint(Sketcher.Constraint("Tangent", 30, 2, 31, 2))
sketch3.addConstraint(Sketcher.Constraint("Tangent", 31, 1, 24, 1))
sketch3.addConstraint(Sketcher.Constraint("Horizontal", 0))
sketch3.addConstraint(Sketcher.Constraint("Vertical", 2))
sketch3.addConstraint(Sketcher.Constraint("Horizontal", 4))
sketch3.addConstraint(Sketcher.Constraint("Vertical", 6))
sketch3.addConstraint(Sketcher.Constraint("Vertical", 8))
sketch3.addConstraint(Sketcher.Constraint("Horizontal", 10))
sketch3.addConstraint(Sketcher.Constraint("Vertical", 12))
sketch3.addConstraint(Sketcher.Constraint("Horizontal", 14))
sketch3.addConstraint(Sketcher.Constraint("Horizontal", 16))
sketch3.addConstraint(Sketcher.Constraint("Vertical", 18))
sketch3.addConstraint(Sketcher.Constraint("Horizontal", 20))
sketch3.addConstraint(Sketcher.Constraint("Vertical", 22))
sketch3.addConstraint(Sketcher.Constraint("Horizontal", 24))
sketch3.addConstraint(Sketcher.Constraint("Vertical", 26))
sketch3.addConstraint(Sketcher.Constraint("Horizontal", 28))
sketch3.addConstraint(Sketcher.Constraint("Vertical", 30))
sketch3.addConstraint(Sketcher.Constraint("Equal", 1, 3))
sketch3.addConstraint(Sketcher.Constraint("Equal", 3, 5))
sketch3.addConstraint(Sketcher.Constraint("Equal", 5, 7))
sketch3.addConstraint(Sketcher.Constraint("Equal", 7, 9))
sketch3.addConstraint(Sketcher.Constraint("Equal", 9, 11))
sketch3.addConstraint(Sketcher.Constraint("Equal", 11, 13))
sketch3.addConstraint(Sketcher.Constraint("Equal", 13, 15))
sketch3.addConstraint(Sketcher.Constraint("Equal", 15, 17))
sketch3.addConstraint(Sketcher.Constraint("Equal", 17, 19))
sketch3.addConstraint(Sketcher.Constraint("Equal", 19, 21))
sketch3.addConstraint(Sketcher.Constraint("Equal", 21, 23))
sketch3.addConstraint(Sketcher.Constraint("Equal", 23, 25))
sketch3.addConstraint(Sketcher.Constraint("Equal", 25, 27))
sketch3.addConstraint(Sketcher.Constraint("Equal", 27, 29))
sketch3.addConstraint(Sketcher.Constraint("Equal", 29, 31))
sketch3.addConstraint(Sketcher.Constraint("Horizontal", 11, 3, 25, 3))
sketch3.addConstraint(Sketcher.Constraint("Horizontal", 15, 3, 27, 3))
sketch3.addConstraint(Sketcher.Constraint("Vertical", 3, 3, 17, 3))
sketch3.addConstraint(Sketcher.Constraint("Vertical", 7, 3, 21, 3))
sketch3.addConstraint(Sketcher.Constraint("Equal", 14, 24))
sketch3.addConstraint(Sketcher.Constraint("Equal", 28, 2))
sketch3.addConstraint(Sketcher.Constraint("Equal", 20, 8))
sketch3.addConstraint(Sketcher.Constraint("Equal", 6, 18))
sketch3.addConstraint(Sketcher.Constraint("Radius", 1, Q("3.81 mm")))
sketch3.addConstraint(Sketcher.Constraint("DistanceX", 0, 1, 0, 2, Q("12.7 mm")))
sketch3.addConstraint(Sketcher.Constraint("DistanceX", 10, 1, 10, 2, Q("5.08 mm")))
sketch3.addConstraint(Sketcher.Constraint("DistanceX", 3, 3, 9, 3, Q("11.684 mm")))
sketch3.addConstraint(Sketcher.Constraint("DistanceY", 9, 3, 3, 3, Q("11.684 mm")))
sketch3.addConstraint(Sketcher.Constraint("DistanceY", 17, 3, 15, 3, Q("11.684 mm")))
sketch3.addConstraint(Sketcher.Constraint("DistanceX", 25, 3, 5, 3, Q("11.684 mm")))
sketch3.addConstraint(Sketcher.Constraint("DistanceY", -1, 1, 1, 3, Q("23.23151 mm")))
sketch3.addConstraint(Sketcher.Constraint("DistanceX", 1, 3, -1, 1, Q("1.255512 mm")))
sketch3.setExpression("Constraints[71]", "Params.sketch3_radius")
sketch3.setExpression("Constraints[72]", "Params.sketch3_width")
sketch3.setExpression("Constraints[73]", "Params.sketch3_width2")
pocket2 = body.newObject("PartDesign::Pocket", "Pocket001")
pocket2.Profile = sketch3
pocket2.setExpression("Length", "Params.pocket2_length")
pocket2.Reversed = True

doc.recompute()
